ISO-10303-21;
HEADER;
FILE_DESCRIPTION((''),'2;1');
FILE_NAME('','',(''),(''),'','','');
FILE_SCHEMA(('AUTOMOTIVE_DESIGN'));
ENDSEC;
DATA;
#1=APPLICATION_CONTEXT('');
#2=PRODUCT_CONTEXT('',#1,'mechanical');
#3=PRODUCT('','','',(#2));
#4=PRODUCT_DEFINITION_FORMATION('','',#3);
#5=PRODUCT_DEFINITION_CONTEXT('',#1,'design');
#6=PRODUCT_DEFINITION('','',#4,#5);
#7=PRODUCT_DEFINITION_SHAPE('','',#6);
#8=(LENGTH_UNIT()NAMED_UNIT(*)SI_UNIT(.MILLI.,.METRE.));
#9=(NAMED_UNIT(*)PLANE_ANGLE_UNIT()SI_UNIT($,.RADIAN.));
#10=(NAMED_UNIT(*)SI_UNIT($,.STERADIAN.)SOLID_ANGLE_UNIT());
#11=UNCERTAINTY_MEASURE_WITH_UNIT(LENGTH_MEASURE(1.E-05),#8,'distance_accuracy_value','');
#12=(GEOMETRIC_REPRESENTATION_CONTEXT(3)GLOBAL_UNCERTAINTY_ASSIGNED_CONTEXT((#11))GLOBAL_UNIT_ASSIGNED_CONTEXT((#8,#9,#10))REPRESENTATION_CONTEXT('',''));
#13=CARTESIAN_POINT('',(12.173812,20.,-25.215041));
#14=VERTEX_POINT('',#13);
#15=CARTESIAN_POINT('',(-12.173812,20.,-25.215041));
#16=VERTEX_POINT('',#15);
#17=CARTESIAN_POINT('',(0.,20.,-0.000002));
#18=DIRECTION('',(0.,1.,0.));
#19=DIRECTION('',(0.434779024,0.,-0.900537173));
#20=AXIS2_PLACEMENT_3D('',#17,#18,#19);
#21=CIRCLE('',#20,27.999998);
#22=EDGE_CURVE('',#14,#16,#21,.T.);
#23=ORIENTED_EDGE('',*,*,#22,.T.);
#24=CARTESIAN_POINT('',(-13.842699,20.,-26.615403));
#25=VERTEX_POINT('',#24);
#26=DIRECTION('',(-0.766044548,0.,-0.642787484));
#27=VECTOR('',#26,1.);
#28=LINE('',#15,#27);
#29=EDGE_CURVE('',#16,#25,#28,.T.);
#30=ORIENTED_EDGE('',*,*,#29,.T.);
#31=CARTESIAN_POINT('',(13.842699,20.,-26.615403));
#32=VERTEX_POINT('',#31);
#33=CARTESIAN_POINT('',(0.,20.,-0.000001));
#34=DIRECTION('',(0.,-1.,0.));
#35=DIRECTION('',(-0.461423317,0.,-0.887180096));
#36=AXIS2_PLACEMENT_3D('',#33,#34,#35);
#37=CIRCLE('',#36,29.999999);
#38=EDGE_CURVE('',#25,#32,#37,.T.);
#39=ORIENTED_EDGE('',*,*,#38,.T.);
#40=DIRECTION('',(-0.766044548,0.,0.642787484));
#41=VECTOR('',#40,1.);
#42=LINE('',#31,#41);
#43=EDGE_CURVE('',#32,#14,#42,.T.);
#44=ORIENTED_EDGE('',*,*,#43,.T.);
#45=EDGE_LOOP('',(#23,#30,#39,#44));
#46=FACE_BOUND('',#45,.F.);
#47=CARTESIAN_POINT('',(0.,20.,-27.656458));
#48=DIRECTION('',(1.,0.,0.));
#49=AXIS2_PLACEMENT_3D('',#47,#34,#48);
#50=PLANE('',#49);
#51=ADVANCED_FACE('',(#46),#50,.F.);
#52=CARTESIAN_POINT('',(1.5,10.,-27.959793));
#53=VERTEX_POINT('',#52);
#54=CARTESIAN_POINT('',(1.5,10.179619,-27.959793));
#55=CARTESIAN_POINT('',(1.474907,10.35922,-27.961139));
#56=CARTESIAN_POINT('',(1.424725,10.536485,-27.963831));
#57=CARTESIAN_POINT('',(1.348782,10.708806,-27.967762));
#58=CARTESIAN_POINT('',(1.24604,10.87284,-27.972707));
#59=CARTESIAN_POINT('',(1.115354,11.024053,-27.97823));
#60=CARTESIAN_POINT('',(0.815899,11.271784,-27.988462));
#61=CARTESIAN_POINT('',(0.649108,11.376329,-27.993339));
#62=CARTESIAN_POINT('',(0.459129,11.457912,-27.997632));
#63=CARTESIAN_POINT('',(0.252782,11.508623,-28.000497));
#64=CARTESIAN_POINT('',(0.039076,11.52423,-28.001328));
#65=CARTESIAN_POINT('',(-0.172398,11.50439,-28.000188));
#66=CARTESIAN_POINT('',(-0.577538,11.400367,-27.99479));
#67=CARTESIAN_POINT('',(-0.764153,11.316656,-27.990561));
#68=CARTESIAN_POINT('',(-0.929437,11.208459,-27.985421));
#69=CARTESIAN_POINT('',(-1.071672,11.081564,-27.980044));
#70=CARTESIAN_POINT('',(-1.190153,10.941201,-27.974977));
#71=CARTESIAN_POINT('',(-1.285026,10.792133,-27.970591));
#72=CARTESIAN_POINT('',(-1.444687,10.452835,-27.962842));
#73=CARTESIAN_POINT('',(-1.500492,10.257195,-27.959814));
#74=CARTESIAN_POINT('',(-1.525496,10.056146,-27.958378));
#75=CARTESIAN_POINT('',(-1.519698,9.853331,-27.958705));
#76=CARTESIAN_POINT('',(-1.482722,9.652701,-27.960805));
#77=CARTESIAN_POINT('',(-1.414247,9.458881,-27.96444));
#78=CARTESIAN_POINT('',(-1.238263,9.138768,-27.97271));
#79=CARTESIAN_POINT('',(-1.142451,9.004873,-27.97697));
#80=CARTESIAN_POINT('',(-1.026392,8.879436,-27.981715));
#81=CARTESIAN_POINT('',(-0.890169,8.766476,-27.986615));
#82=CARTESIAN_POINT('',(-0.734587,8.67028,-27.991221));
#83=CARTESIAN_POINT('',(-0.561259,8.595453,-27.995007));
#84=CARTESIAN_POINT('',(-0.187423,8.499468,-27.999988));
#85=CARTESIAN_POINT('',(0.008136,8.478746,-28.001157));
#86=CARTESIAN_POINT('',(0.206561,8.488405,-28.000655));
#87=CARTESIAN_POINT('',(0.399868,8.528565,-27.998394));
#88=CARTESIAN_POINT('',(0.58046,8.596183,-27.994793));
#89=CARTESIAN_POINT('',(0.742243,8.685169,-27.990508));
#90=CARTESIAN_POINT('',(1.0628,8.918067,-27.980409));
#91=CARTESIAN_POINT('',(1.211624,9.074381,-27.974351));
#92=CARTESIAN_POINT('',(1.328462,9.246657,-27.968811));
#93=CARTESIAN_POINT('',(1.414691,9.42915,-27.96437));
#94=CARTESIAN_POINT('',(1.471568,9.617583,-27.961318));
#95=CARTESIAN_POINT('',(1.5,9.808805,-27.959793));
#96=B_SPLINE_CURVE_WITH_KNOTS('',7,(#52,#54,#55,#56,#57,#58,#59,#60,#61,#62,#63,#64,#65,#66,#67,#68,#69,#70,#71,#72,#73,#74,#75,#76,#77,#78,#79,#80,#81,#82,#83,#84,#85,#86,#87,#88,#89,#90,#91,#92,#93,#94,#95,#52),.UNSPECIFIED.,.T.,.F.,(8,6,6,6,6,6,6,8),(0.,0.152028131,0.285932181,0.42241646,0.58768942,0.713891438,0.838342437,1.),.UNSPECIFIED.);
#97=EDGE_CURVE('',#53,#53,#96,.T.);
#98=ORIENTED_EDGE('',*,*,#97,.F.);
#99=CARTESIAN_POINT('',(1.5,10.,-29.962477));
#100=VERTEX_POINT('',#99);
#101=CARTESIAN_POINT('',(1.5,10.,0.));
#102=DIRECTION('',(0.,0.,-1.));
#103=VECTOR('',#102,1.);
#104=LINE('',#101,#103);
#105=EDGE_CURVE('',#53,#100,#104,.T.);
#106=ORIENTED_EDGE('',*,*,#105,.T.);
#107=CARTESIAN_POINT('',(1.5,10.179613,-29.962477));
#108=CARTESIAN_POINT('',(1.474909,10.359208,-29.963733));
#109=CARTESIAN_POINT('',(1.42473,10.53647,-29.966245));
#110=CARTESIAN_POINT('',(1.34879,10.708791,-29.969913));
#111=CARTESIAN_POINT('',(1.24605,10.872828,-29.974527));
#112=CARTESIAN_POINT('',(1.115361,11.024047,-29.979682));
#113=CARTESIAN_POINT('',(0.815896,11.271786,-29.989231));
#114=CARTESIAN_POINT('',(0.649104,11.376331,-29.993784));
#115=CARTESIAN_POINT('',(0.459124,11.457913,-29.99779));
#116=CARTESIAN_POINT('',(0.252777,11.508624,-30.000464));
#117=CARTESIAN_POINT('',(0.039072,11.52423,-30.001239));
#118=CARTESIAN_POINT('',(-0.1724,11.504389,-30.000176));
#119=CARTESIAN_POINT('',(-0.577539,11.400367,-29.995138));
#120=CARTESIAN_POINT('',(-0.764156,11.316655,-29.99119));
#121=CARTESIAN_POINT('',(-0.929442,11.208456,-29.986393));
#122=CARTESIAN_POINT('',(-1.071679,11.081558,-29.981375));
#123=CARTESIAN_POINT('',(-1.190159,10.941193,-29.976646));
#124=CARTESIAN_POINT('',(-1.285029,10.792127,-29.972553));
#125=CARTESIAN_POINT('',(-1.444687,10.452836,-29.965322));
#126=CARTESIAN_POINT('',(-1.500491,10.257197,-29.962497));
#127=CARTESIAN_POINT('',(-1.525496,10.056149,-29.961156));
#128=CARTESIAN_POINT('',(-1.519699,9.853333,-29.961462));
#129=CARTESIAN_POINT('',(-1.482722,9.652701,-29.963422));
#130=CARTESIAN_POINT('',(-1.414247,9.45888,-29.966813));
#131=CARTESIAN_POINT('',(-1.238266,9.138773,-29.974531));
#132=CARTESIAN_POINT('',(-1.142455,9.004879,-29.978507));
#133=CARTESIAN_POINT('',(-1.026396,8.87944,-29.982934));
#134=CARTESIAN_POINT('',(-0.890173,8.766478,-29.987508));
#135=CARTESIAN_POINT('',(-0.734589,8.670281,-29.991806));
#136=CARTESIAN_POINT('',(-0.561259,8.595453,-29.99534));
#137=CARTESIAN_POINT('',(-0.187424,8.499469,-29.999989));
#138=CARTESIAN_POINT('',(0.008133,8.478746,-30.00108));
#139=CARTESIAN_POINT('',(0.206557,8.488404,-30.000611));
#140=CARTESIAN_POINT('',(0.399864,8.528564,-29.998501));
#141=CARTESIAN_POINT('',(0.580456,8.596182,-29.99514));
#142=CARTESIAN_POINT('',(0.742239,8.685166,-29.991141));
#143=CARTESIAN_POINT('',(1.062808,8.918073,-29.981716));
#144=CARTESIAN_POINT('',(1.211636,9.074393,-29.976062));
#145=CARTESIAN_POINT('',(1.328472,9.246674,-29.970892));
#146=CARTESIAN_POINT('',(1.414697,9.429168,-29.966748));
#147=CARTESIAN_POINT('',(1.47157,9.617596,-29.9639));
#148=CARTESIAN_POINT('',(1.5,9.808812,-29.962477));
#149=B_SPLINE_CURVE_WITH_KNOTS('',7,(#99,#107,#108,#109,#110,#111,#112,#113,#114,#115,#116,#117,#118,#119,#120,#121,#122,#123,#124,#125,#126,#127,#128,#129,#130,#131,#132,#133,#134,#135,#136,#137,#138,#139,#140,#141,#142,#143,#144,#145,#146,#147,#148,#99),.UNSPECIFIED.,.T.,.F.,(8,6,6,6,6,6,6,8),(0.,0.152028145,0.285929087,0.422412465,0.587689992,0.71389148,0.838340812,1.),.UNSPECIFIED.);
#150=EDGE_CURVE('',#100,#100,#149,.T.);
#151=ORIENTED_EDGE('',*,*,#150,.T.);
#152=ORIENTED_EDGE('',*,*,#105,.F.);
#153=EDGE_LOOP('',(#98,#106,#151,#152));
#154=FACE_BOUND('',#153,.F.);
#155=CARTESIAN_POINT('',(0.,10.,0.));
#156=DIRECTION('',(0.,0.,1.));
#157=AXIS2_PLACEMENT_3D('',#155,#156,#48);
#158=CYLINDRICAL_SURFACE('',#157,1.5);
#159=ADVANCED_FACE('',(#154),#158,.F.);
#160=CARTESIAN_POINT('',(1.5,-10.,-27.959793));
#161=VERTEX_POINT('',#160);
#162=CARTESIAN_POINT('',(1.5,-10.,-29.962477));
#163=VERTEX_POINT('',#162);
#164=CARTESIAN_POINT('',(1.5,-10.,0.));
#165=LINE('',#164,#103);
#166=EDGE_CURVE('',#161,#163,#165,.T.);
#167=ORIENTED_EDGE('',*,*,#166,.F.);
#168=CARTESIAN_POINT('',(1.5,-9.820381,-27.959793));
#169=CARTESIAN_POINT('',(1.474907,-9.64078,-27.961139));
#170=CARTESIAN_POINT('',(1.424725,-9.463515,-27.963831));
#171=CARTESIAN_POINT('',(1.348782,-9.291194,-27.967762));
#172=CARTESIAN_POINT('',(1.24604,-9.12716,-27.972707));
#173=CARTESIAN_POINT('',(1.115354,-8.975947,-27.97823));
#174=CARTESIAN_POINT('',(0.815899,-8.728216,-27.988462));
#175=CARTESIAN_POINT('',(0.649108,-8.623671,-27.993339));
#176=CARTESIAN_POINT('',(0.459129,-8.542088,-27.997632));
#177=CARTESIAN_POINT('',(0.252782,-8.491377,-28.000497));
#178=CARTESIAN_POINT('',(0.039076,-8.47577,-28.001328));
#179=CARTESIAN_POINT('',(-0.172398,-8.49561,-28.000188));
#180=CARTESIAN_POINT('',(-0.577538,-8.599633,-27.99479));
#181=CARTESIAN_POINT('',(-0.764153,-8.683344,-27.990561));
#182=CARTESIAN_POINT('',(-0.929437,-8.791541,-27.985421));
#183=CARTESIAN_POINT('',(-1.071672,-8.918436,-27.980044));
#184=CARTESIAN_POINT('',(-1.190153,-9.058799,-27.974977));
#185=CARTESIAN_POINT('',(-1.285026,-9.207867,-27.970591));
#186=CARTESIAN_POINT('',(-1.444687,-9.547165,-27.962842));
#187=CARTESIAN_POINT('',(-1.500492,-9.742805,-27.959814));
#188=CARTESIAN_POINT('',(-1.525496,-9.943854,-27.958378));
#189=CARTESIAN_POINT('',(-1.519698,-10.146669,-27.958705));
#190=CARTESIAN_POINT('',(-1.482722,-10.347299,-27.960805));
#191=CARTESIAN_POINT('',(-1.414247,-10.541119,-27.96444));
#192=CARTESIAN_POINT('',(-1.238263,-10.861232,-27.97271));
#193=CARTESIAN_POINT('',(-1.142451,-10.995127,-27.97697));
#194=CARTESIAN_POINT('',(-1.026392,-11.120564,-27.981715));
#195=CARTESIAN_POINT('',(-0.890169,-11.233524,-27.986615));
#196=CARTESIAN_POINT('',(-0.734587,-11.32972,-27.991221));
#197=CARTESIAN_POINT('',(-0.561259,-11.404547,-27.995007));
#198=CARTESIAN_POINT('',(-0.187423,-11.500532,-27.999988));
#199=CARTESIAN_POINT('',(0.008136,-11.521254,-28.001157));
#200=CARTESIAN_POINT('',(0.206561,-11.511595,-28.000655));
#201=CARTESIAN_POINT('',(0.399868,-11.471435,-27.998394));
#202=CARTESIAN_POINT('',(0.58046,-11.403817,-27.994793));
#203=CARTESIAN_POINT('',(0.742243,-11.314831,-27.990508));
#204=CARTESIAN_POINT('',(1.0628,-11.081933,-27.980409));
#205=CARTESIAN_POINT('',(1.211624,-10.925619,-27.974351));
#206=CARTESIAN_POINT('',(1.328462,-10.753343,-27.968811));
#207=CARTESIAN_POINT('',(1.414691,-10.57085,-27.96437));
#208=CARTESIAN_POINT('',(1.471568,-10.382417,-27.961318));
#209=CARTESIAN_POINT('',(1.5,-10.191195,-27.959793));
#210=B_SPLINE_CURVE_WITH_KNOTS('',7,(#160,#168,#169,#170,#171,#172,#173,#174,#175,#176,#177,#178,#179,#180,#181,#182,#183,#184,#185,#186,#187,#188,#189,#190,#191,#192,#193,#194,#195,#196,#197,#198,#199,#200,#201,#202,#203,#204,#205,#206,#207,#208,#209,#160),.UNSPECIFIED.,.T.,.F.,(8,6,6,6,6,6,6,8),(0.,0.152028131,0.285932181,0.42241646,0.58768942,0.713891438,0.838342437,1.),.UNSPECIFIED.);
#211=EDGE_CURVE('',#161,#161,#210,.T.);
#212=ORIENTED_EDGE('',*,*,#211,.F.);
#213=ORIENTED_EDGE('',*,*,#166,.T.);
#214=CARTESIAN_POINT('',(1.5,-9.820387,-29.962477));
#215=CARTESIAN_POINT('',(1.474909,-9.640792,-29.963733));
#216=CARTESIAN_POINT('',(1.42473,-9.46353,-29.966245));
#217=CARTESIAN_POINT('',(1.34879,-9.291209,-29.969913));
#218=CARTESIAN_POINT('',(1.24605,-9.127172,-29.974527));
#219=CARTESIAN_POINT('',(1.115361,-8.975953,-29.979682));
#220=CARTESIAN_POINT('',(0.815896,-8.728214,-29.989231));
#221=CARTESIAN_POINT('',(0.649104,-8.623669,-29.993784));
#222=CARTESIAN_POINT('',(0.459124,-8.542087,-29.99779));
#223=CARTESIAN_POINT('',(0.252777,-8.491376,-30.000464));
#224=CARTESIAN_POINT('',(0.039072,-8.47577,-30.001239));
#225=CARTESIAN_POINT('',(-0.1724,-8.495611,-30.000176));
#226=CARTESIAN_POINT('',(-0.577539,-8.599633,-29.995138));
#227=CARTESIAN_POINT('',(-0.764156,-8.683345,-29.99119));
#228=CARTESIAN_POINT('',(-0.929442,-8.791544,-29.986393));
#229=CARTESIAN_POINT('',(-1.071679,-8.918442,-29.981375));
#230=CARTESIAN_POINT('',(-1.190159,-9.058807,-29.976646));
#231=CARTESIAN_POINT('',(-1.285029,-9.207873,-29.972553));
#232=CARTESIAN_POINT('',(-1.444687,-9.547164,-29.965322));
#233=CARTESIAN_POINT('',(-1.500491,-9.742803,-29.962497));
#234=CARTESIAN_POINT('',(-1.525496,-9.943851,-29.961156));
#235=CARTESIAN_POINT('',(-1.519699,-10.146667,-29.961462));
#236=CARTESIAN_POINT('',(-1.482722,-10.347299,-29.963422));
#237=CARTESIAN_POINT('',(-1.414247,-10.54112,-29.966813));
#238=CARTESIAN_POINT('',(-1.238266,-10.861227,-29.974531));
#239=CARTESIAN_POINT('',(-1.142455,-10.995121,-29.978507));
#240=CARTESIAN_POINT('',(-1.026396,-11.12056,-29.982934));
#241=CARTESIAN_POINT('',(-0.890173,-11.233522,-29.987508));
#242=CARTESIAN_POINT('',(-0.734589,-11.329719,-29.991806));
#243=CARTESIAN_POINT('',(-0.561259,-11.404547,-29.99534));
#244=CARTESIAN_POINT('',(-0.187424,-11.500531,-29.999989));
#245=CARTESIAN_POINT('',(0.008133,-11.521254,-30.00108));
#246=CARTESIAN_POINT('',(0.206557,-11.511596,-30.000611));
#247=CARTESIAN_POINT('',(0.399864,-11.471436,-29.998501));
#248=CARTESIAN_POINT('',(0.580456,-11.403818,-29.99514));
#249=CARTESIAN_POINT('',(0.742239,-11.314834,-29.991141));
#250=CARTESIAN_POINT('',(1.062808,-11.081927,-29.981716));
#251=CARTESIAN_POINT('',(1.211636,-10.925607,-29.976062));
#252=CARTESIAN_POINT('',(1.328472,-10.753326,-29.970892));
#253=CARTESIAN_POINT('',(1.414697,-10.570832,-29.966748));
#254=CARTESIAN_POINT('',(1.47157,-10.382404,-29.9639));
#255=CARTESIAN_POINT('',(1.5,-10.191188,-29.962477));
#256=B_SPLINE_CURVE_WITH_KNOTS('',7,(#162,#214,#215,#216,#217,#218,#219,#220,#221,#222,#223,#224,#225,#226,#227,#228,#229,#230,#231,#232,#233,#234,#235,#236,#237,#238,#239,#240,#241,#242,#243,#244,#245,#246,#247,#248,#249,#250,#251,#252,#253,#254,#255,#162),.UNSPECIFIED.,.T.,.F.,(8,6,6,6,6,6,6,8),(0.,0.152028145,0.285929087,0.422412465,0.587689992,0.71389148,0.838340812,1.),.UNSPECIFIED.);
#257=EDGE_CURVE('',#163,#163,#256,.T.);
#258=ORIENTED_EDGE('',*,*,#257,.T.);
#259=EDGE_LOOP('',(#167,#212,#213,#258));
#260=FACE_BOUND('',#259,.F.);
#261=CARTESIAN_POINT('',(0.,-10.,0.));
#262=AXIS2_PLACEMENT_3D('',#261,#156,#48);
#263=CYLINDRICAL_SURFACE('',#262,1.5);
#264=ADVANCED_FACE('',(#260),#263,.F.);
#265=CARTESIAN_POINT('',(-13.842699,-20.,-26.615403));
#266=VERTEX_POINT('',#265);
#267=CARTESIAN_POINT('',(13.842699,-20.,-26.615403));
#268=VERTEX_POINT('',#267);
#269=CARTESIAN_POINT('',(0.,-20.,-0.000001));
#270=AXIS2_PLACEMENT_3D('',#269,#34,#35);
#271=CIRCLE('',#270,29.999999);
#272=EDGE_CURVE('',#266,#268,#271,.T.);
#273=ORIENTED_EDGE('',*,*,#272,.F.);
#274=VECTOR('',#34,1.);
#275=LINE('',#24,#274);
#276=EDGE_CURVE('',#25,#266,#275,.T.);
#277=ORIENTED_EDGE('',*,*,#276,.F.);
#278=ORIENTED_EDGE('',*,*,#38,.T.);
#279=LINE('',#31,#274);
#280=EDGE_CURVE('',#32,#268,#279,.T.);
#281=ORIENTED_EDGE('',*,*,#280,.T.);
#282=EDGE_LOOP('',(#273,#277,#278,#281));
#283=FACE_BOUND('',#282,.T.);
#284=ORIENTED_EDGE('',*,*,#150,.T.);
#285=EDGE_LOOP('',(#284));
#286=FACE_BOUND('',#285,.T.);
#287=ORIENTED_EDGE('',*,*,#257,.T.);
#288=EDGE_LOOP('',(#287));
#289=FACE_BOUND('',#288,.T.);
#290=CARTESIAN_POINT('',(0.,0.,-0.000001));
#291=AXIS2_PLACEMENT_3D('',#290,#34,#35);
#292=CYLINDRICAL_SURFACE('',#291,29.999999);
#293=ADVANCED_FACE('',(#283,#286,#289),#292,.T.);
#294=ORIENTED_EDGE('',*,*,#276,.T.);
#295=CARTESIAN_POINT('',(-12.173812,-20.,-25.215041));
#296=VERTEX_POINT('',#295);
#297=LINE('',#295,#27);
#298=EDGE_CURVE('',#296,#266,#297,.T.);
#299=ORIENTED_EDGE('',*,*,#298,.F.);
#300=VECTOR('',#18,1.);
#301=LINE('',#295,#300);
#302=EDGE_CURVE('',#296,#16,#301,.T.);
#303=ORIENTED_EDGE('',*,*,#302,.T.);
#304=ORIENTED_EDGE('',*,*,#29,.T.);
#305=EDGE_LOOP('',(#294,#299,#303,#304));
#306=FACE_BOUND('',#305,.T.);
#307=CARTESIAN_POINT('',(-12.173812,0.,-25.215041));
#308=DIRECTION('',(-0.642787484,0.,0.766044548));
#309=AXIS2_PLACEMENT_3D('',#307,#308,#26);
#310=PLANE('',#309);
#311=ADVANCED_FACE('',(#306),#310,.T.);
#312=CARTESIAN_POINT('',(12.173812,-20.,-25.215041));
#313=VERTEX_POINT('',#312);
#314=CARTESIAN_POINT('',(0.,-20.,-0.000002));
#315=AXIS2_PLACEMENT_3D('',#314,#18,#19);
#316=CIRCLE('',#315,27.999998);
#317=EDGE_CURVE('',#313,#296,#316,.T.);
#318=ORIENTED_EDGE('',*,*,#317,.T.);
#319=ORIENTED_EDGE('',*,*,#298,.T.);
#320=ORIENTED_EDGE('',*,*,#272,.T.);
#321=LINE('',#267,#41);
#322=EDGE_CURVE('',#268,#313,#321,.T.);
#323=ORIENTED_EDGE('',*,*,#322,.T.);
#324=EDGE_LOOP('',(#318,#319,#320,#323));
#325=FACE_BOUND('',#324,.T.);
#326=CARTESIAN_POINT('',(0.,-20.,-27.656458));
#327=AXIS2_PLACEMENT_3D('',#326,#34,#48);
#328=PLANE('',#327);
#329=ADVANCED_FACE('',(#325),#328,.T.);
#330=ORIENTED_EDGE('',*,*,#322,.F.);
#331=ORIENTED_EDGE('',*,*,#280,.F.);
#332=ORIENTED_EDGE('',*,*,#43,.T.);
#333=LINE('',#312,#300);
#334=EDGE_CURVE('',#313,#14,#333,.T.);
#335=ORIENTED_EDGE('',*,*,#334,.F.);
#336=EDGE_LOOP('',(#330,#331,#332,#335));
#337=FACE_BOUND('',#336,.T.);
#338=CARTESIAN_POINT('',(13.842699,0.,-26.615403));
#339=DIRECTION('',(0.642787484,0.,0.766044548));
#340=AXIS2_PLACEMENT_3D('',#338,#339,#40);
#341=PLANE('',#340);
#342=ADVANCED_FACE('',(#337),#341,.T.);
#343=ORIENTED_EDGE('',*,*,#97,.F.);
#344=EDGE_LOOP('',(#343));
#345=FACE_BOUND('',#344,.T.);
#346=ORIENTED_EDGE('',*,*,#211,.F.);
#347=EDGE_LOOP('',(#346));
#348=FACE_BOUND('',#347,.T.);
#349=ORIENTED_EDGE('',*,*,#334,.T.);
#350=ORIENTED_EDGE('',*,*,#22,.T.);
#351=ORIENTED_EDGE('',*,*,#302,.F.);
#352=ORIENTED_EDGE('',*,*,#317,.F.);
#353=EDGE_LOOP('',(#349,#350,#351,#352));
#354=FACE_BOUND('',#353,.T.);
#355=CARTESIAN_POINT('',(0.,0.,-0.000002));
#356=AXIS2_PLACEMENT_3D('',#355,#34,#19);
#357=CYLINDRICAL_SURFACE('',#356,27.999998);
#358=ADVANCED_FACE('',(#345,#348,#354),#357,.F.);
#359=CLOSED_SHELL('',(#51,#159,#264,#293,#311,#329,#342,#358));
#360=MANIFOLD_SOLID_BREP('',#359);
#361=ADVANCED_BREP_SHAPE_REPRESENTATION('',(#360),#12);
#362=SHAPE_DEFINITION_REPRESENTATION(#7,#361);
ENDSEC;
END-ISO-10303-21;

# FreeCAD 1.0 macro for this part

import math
import FreeCAD as App
import Part
import Sketcher
from FreeCAD import Vector
Q = App.Units.Quantity

doc = App.newDocument("Part")
body = doc.addObject("PartDesign::Body", "Body")

# Sketch on XZ plane
sketch1 = body.newObject("Sketcher::SketchObject", "Sketch")
sketch1.AttachmentSupport = (doc.getObject("XZ_Plane"), [""])
sketch1.MapMode = "FlatFace"
sketch1.addGeometry(Part.LineSegment(Vector(-12.2, -25.2, 0), Vector(-13.8, -26.6, 0)), False)
sketch1.addGeometry(Part.ArcOfCircle(Part.Circle(Vector(0, 0, 0), Vector(0, 0, 1), 30), math.radians(-117), math.radians(-63)), False)
sketch1.addGeometry(Part.LineSegment(Vector(13.8, -26.6, 0), Vector(12.2, -25.2, 0)), False)
sketch1.addGeometry(Part.ArcOfCircle(Part.Circle(Vector(0, 0, 0), Vector(0, 0, 1), 28), math.radians(-116), math.radians(-64)), False)
sketch1.addConstraint(Sketcher.Constraint("Coincident", 0, 2, 1, 1))
sketch1.addConstraint(Sketcher.Constraint("Coincident", 1, 2, 2, 1))
sketch1.addConstraint(Sketcher.Constraint("Coincident", 2, 2, 3, 2))
sketch1.addConstraint(Sketcher.Constraint("Coincident", 3, 1, 0, 1))
sketch1.addConstraint(Sketcher.Constraint("Coincident", 1, 3, -1, 1))
sketch1.addConstraint(Sketcher.Constraint("Coincident", 3, 3, -1, 1))
sketch1.addConstraint(Sketcher.Constraint("Horizontal", 0, 2, 1, 2))
sketch1.addConstraint(Sketcher.Constraint("Horizontal", 2, 2, 3, 1))
sketch1.addConstraint(Sketcher.Constraint("Radius", 1, Q("29.999999 mm")))
sketch1.addConstraint(Sketcher.Constraint("Radius", 3, Q("27.999998 mm")))
sketch1.addConstraint(Sketcher.Constraint("Angle", 0, Q("-140.000009 deg")))
sketch1.addConstraint(Sketcher.Constraint("DistanceX", 0, 2, -1, 1, Q("13.842699 mm")))
pad1 = body.newObject("PartDesign::Pad", "Pad")
pad1.Profile = sketch1
pad1.Length = 40
pad1.Midplane = True

# Sketch on XY plane
sketch2 = body.newObject("Sketcher::SketchObject", "Sketch001")
sketch2.AttachmentSupport = (doc.getObject("XY_Plane"), [""])
sketch2.MapMode = "FlatFace"
sketch2.addGeometry(Part.Circle(Vector(0, -10, 0), Vector(0, 0, 1), 1.5), False)
sketch2.addGeometry(Part.Circle(Vector(0, 10, 0), Vector(0, 0, 1), 1.5), False)
sketch2.addConstraint(Sketcher.Constraint("Equal", 0, 1))
sketch2.addConstraint(Sketcher.Constraint("Symmetric", 0, 3, 1, 3, -1, 1))
sketch2.addConstraint(Sketcher.Constraint("PointOnObject", 0, 3, -2))
sketch2.addConstraint(Sketcher.Constraint("Diameter", 0, Q("3 mm")))
sketch2.addConstraint(Sketcher.Constraint("DistanceY", 0, 3, -1, 1, Q("10 mm")))
pocket1 = body.newObject("PartDesign::Pocket", "Pocket")
pocket1.Profile = sketch2
pocket1.Length = 54.84426

doc.recompute()
